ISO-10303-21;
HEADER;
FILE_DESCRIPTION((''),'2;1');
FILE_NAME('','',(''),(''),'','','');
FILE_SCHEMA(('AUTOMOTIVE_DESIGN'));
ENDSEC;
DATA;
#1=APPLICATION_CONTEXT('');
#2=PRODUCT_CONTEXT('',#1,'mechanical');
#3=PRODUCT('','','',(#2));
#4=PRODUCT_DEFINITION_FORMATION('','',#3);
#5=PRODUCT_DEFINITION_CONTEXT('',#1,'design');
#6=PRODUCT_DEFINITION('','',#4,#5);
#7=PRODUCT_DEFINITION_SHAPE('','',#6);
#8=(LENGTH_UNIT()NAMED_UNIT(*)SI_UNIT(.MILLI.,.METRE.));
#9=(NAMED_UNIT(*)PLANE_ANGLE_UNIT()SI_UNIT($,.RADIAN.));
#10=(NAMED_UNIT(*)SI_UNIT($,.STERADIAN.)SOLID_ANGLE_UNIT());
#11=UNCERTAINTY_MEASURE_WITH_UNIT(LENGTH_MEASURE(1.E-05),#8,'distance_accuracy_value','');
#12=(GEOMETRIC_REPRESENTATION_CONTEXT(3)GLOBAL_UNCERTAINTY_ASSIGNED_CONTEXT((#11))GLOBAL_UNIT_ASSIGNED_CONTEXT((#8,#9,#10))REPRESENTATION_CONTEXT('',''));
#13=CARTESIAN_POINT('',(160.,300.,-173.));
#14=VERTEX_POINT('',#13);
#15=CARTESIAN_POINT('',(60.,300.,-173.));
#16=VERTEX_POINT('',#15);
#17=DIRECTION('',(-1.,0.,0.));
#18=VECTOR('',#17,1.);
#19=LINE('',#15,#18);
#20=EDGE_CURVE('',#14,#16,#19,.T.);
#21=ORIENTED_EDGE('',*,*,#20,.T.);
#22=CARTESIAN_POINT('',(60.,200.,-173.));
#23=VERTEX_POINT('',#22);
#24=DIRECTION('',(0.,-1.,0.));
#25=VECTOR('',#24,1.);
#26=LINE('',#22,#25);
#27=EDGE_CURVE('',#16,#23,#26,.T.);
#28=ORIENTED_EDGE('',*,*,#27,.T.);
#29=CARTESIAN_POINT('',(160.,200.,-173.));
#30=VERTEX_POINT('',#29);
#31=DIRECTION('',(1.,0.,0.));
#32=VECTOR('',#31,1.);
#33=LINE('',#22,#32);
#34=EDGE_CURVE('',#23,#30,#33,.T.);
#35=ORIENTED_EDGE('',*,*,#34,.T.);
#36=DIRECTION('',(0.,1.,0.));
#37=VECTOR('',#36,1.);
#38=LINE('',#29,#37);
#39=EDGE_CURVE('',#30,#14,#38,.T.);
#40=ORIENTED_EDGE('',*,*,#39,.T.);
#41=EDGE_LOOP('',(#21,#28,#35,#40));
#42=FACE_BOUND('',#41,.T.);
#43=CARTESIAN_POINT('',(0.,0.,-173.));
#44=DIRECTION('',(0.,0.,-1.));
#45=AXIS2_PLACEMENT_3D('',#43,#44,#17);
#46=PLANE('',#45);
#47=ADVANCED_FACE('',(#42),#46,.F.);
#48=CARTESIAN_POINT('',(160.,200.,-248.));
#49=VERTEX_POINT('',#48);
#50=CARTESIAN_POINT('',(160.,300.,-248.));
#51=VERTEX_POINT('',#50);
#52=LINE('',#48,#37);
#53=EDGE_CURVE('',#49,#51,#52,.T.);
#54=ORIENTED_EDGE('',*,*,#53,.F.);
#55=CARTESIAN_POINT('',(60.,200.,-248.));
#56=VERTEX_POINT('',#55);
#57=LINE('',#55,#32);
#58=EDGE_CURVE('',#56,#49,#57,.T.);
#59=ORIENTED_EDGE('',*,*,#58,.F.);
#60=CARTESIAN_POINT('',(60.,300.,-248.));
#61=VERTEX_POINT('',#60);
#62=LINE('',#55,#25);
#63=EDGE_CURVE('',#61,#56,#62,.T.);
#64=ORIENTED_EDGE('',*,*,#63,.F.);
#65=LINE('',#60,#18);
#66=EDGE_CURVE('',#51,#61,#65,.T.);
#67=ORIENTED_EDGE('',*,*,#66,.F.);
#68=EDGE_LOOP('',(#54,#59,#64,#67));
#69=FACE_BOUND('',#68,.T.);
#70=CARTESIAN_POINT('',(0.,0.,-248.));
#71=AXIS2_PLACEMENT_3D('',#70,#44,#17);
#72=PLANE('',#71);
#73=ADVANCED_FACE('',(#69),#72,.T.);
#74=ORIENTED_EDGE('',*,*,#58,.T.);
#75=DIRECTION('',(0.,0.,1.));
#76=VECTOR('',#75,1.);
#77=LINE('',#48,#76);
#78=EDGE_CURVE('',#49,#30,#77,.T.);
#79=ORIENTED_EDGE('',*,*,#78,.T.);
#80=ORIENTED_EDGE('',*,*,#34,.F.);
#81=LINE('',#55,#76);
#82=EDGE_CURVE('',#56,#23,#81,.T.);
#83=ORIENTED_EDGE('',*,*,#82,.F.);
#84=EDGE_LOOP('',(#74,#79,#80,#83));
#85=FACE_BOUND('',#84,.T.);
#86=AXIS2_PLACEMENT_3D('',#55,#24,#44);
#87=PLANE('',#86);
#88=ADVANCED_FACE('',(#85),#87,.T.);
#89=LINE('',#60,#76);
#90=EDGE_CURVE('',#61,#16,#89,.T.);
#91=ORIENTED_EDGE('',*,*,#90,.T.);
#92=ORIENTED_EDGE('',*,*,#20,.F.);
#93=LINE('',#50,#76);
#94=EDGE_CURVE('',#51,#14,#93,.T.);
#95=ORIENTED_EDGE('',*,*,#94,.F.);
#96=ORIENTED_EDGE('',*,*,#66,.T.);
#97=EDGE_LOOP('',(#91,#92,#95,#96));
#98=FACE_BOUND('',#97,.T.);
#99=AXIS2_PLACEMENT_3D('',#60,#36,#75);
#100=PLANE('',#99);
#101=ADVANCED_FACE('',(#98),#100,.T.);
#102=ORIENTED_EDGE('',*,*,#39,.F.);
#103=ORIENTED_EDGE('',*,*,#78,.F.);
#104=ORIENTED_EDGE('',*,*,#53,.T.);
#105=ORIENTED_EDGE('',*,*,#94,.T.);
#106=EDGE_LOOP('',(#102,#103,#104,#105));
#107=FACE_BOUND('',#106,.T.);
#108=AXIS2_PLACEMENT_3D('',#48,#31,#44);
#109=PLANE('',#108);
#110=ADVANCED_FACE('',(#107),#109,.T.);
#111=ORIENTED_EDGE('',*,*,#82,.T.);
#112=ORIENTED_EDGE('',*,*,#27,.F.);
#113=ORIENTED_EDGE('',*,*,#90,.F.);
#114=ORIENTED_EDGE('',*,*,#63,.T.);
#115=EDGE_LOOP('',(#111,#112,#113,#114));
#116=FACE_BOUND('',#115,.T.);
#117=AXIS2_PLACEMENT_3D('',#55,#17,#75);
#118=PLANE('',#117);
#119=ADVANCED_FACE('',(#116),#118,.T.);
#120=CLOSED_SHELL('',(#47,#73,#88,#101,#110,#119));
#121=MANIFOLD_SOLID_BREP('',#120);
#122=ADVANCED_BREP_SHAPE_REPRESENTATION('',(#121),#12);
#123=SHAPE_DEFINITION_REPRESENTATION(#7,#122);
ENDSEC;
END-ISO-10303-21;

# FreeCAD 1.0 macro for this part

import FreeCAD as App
import Part
import Sketcher

V = App.Vector

doc = App.newDocument("Part")
body = doc.addObject("PartDesign::Body", "Body")

# Sketch on XY plane
sketch1 = body.newObject("Sketcher::SketchObject", "Sketch")
sketch1.AttachmentSupport = (doc.getObject("XY_Plane"), [""])
sketch1.MapMode = "FlatFace"
sketch1.AttachmentOffset = App.Placement(V(0, 0, -173), App.Rotation())
sketch1.addGeometry([
    Part.LineSegment(V(60, 300, 0), V(60, 200, 0)),
    Part.LineSegment(V(60, 200, 0), V(160, 200, 0)),
    Part.LineSegment(V(160, 200, 0), V(160, 300, 0)),
    Part.LineSegment(V(160, 300, 0), V(60, 300, 0)),
], False)
sketch1.addConstraint([
    Sketcher.Constraint("Coincident", 0, 2, 1, 1),
    Sketcher.Constraint("Coincident", 1, 2, 2, 1),
    Sketcher.Constraint("Coincident", 2, 2, 3, 1),
    Sketcher.Constraint("Coincident", 3, 2, 0, 1),
    Sketcher.Constraint("Vertical", 0),
    Sketcher.Constraint("Horizontal", 1),
    Sketcher.Constraint("Vertical", 2),
    Sketcher.Constraint("Horizontal", 3),
    Sketcher.Constraint("Equal", 3, 0),
    Sketcher.Constraint("DistanceX", 1, 1, 1, 2, 100.0),
    Sketcher.Constraint("DistanceX", -1, 1, 0, 2, 60.0),
    Sketcher.Constraint("DistanceY", -1, 1, 0, 2, 200.0),
])
pad1 = body.newObject("PartDesign::Pad", "Pad")
pad1.Profile = sketch1
pad1.Length = 75
pad1.Reversed = True

doc.recompute()
